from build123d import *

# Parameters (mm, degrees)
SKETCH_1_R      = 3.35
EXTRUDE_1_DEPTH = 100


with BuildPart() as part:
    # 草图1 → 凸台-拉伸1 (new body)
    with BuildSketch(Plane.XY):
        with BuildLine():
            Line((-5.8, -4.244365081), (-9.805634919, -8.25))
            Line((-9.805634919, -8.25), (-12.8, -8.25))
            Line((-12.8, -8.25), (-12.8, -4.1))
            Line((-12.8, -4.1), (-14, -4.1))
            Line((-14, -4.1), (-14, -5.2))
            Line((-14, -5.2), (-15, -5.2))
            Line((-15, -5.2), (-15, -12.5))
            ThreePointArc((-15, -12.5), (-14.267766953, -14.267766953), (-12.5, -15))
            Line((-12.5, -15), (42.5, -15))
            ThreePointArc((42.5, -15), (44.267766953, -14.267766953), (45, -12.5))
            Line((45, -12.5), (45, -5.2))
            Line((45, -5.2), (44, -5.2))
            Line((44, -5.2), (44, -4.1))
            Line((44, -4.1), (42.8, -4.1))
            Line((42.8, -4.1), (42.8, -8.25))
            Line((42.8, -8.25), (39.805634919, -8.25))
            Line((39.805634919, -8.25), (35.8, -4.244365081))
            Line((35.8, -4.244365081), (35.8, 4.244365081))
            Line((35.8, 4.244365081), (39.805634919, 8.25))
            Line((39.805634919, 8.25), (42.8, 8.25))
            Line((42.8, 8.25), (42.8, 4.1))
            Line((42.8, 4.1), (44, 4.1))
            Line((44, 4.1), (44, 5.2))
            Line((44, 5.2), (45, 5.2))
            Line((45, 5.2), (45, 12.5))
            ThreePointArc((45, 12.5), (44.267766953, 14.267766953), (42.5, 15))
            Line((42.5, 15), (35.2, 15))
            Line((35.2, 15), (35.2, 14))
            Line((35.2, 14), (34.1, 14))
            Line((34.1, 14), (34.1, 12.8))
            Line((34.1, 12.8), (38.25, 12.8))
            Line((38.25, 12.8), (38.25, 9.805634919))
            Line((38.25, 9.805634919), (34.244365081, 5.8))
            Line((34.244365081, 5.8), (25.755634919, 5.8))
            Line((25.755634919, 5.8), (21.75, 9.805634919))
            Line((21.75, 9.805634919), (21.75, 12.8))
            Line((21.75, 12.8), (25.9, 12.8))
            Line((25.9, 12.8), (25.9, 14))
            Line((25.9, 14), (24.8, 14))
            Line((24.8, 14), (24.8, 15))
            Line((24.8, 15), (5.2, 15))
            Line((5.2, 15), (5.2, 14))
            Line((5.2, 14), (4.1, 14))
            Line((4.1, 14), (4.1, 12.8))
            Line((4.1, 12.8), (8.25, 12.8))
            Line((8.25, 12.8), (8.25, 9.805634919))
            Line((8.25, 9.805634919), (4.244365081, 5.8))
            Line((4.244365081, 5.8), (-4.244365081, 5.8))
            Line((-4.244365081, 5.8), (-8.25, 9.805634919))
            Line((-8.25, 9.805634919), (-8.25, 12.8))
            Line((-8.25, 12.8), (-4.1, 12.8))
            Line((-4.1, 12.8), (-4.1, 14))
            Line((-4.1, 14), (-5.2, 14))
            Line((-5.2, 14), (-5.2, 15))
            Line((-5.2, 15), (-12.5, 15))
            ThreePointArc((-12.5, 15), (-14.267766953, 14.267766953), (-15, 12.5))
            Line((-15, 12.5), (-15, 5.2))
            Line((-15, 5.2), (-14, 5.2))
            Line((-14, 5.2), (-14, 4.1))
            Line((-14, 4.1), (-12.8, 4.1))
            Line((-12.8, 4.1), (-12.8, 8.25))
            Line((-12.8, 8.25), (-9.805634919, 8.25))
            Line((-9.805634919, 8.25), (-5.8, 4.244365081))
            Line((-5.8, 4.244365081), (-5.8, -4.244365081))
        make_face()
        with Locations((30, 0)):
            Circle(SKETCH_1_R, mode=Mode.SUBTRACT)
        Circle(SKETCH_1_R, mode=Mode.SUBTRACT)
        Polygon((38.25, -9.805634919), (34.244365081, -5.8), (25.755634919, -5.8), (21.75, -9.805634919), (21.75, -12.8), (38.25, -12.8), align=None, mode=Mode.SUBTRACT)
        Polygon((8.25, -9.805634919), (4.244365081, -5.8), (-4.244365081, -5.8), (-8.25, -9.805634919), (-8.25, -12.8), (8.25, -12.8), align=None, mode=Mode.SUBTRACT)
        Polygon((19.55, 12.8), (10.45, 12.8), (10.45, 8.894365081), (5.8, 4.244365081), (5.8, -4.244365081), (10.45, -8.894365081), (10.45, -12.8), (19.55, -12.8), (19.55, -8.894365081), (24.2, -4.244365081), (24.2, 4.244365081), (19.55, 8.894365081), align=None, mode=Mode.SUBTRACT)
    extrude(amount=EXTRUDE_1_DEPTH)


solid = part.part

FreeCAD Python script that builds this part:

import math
import FreeCAD as App
import Part
import Sketcher

V = App.Vector


def add_polygon(sketch, points):
    """Adds a closed chain of lines whose ends are joined by coincident constraints."""
    first, n = sketch.GeometryCount, len(points)
    for a, b in zip(points, points[1:] + points[:1]):
        sketch.addGeometry(Part.LineSegment(App.Vector(*a, 0), App.Vector(*b, 0)), False)
    for i in range(n):
        sketch.addConstraint(Sketcher.Constraint("Coincident", first + i, 2, first + (i + 1) % n, 1))

doc = App.newDocument("Part")
body = doc.addObject("PartDesign::Body", "Body")

# Sketch on XY plane
sketch1 = body.newObject("Sketcher::SketchObject", "Sketch")
sketch1.AttachmentSupport = (doc.getObject("XY_Plane"), [""])
sketch1.MapMode = "FlatFace"
sketch1.addGeometry(Part.LineSegment(V(-5.8, -4.244365, 0), V(-9.805635, -8.25, 0)), False)  # 0
sketch1.addGeometry(Part.LineSegment(V(-9.805635, -8.25, 0), V(-12.8, -8.25, 0)), False)  # 1
sketch1.addGeometry(Part.LineSegment(V(-12.8, -8.25, 0), V(-12.8, -4.1, 0)), False)  # 2
sketch1.addGeometry(Part.LineSegment(V(-12.8, -4.1, 0), V(-14, -4.1, 0)), False)  # 3
sketch1.addGeometry(Part.LineSegment(V(-14, -4.1, 0), V(-14, -5.2, 0)), False)  # 4
sketch1.addGeometry(Part.LineSegment(V(-14, -5.2, 0), V(-15, -5.2, 0)), False)  # 5
sketch1.addGeometry(Part.LineSegment(V(-15, -5.2, 0), V(-15, -12.5, 0)), False)  # 6
sketch1.addGeometry(Part.ArcOfCircle(Part.Circle(V(-12.5, -12.5, 0), V(0, 0, 1), 2.5), math.radians(180), math.radians(270)), False)  # 7
sketch1.addGeometry(Part.LineSegment(V(-12.5, -15, 0), V(42.5, -15, 0)), False)  # 8
sketch1.addGeometry(Part.ArcOfCircle(Part.Circle(V(42.5, -12.5, 0), V(0, 0, 1), 2.5), math.radians(-90), math.radians(0)), False)  # 9
sketch1.addGeometry(Part.LineSegment(V(45, -12.5, 0), V(45, -5.2, 0)), False)  # 10
sketch1.addGeometry(Part.LineSegment(V(45, -5.2, 0), V(44, -5.2, 0)), False)  # 11
sketch1.addGeometry(Part.LineSegment(V(44, -5.2, 0), V(44, -4.1, 0)), False)  # 12
sketch1.addGeometry(Part.LineSegment(V(44, -4.1, 0), V(42.8, -4.1, 0)), False)  # 13
sketch1.addGeometry(Part.LineSegment(V(42.8, -4.1, 0), V(42.8, -8.25, 0)), False)  # 14
sketch1.addGeometry(Part.LineSegment(V(42.8, -8.25, 0), V(39.805635, -8.25, 0)), False)  # 15
sketch1.addGeometry(Part.LineSegment(V(39.805635, -8.25, 0), V(35.8, -4.244365, 0)), False)  # 16
sketch1.addGeometry(Part.LineSegment(V(35.8, -4.244365, 0), V(35.8, 4.244365, 0)), False)  # 17
sketch1.addGeometry(Part.LineSegment(V(35.8, 4.244365, 0), V(39.805635, 8.25, 0)), False)  # 18
sketch1.addGeometry(Part.LineSegment(V(39.805635, 8.25, 0), V(42.8, 8.25, 0)), False)  # 19
sketch1.addGeometry(Part.LineSegment(V(42.8, 8.25, 0), V(42.8, 4.1, 0)), False)  # 20
sketch1.addGeometry(Part.LineSegment(V(42.8, 4.1, 0), V(44, 4.1, 0)), False)  # 21
sketch1.addGeometry(Part.LineSegment(V(44, 4.1, 0), V(44, 5.2, 0)), False)  # 22
sketch1.addGeometry(Part.LineSegment(V(44, 5.2, 0), V(45, 5.2, 0)), False)  # 23
sketch1.addGeometry(Part.LineSegment(V(45, 5.2, 0), V(45, 12.5, 0)), False)  # 24
sketch1.addGeometry(Part.ArcOfCircle(Part.Circle(V(42.5, 12.5, 0), V(0, 0, 1), 2.5), math.radians(0), math.radians(90)), False)  # 25
sketch1.addGeometry(Part.LineSegment(V(42.5, 15, 0), V(35.2, 15, 0)), False)  # 26
sketch1.addGeometry(Part.LineSegment(V(35.2, 15, 0), V(35.2, 14, 0)), False)  # 27
sketch1.addGeometry(Part.LineSegment(V(35.2, 14, 0), V(34.1, 14, 0)), False)  # 28
sketch1.addGeometry(Part.LineSegment(V(34.1, 14, 0), V(34.1, 12.8, 0)), False)  # 29
sketch1.addGeometry(Part.LineSegment(V(34.1, 12.8, 0), V(38.25, 12.8, 0)), False)  # 30
sketch1.addGeometry(Part.LineSegment(V(38.25, 12.8, 0), V(38.25, 9.805635, 0)), False)  # 31
sketch1.addGeometry(Part.LineSegment(V(38.25, 9.805635, 0), V(34.244365, 5.8, 0)), False)  # 32
sketch1.addGeometry(Part.LineSegment(V(34.244365, 5.8, 0), V(25.755635, 5.8, 0)), False)  # 33
sketch1.addGeometry(Part.LineSegment(V(25.755635, 5.8, 0), V(21.75, 9.805635, 0)), False)  # 34
sketch1.addGeometry(Part.LineSegment(V(21.75, 9.805635, 0), V(21.75, 12.8, 0)), False)  # 35
sketch1.addGeometry(Part.LineSegment(V(21.75, 12.8, 0), V(25.9, 12.8, 0)), False)  # 36
sketch1.addGeometry(Part.LineSegment(V(25.9, 12.8, 0), V(25.9, 14, 0)), False)  # 37
sketch1.addGeometry(Part.LineSegment(V(25.9, 14, 0), V(24.8, 14, 0)), False)  # 38
sketch1.addGeometry(Part.LineSegment(V(24.8, 14, 0), V(24.8, 15, 0)), False)  # 39
sketch1.addGeometry(Part.LineSegment(V(24.8, 15, 0), V(5.2, 15, 0)), False)  # 40
sketch1.addGeometry(Part.LineSegment(V(5.2, 15, 0), V(5.2, 14, 0)), False)  # 41
sketch1.addGeometry(Part.LineSegment(V(5.2, 14, 0), V(4.1, 14, 0)), False)  # 42
sketch1.addGeometry(Part.LineSegment(V(4.1, 14, 0), V(4.1, 12.8, 0)), False)  # 43
sketch1.addGeometry(Part.LineSegment(V(4.1, 12.8, 0), V(8.25, 12.8, 0)), False)  # 44
sketch1.addGeometry(Part.LineSegment(V(8.25, 12.8, 0), V(8.25, 9.805635, 0)), False)  # 45
sketch1.addGeometry(Part.LineSegment(V(8.25, 9.805635, 0), V(4.244365, 5.8, 0)), False)  # 46
sketch1.addGeometry(Part.LineSegment(V(4.244365, 5.8, 0), V(-4.244365, 5.8, 0)), False)  # 47
sketch1.addGeometry(Part.LineSegment(V(-4.244365, 5.8, 0), V(-8.25, 9.805635, 0)), False)  # 48
sketch1.addGeometry(Part.LineSegment(V(-8.25, 9.805635, 0), V(-8.25, 12.8, 0)), False)  # 49
sketch1.addGeometry(Part.LineSegment(V(-8.25, 12.8, 0), V(-4.1, 12.8, 0)), False)  # 50
sketch1.addGeometry(Part.LineSegment(V(-4.1, 12.8, 0), V(-4.1, 14, 0)), False)  # 51
sketch1.addGeometry(Part.LineSegment(V(-4.1, 14, 0), V(-5.2, 14, 0)), False)  # 52
sketch1.addGeometry(Part.LineSegment(V(-5.2, 14, 0), V(-5.2, 15, 0)), False)  # 53
sketch1.addGeometry(Part.LineSegment(V(-5.2, 15, 0), V(-12.5, 15, 0)), False)  # 54
sketch1.addGeometry(Part.ArcOfCircle(Part.Circle(V(-12.5, 12.5, 0), V(0, 0, 1), 2.5), math.radians(90), math.radians(180)), False)  # 55
sketch1.addGeometry(Part.LineSegment(V(-15, 12.5, 0), V(-15, 5.2, 0)), False)  # 56
sketch1.addGeometry(Part.LineSegment(V(-15, 5.2, 0), V(-14, 5.2, 0)), False)  # 57
sketch1.addGeometry(Part.LineSegment(V(-14, 5.2, 0), V(-14, 4.1, 0)), False)  # 58
sketch1.addGeometry(Part.LineSegment(V(-14, 4.1, 0), V(-12.8, 4.1, 0)), False)  # 59
sketch1.addGeometry(Part.LineSegment(V(-12.8, 4.1, 0), V(-12.8, 8.25, 0)), False)  # 60
sketch1.addGeometry(Part.LineSegment(V(-12.8, 8.25, 0), V(-9.805635, 8.25, 0)), False)  # 61
sketch1.addGeometry(Part.LineSegment(V(-9.805635, 8.25, 0), V(-5.8, 4.244365, 0)), False)  # 62
sketch1.addGeometry(Part.LineSegment(V(-5.8, 4.244365, 0), V(-5.8, -4.244365, 0)), False)  # 63
add_polygon(sketch1, [(4.244365, -5.8), (8.25, -9.805635), (8.25, -12.8), (-8.25, -12.8), (-8.25, -9.805635), (-4.244365, -5.8)])  # lines 64-69
add_polygon(sketch1, [(34.244365, -5.8), (38.25, -9.805635), (38.25, -12.8), (21.75, -12.8), (21.75, -9.805635), (25.755635, -5.8)])  # lines 70-75
sketch1.addGeometry(Part.Circle(V(0, 0, 0), V(0, 0, 1), 3.35), False)  # 76
add_polygon(sketch1, [(10.45, 12.8), (19.55, 12.8), (19.55, 8.894365), (24.2, 4.244365), (24.2, -4.244365), (19.55, -8.894365), (19.55, -12.8), (10.45, -12.8), (10.45, -8.894365), (5.8, -4.244365), (5.8, 4.244365), (10.45, 8.894365)])  # lines 77-88
sketch1.addGeometry(Part.Circle(V(30, 0, 0), V(0, 0, 1), 3.35), False)  # 89
sketch1.addConstraint([
    Sketcher.Constraint("Coincident", 0, 2, 1, 1),
    Sketcher.Constraint("Coincident", 1, 2, 2, 1),
    Sketcher.Constraint("Coincident", 2, 2, 3, 1),
    Sketcher.Constraint("Coincident", 3, 2, 4, 1),
    Sketcher.Constraint("Coincident", 4, 2, 5, 1),
    Sketcher.Constraint("Coincident", 5, 2, 6, 1),
    Sketcher.Constraint("Tangent", 6, 2, 7, 1),
    Sketcher.Constraint("Tangent", 7, 2, 8, 1),
    Sketcher.Constraint("Tangent", 8, 2, 9, 1),
    Sketcher.Constraint("Tangent", 9, 2, 10, 1),
    Sketcher.Constraint("Coincident", 10, 2, 11, 1),
    Sketcher.Constraint("Coincident", 11, 2, 12, 1),
    Sketcher.Constraint("Coincident", 12, 2, 13, 1),
    Sketcher.Constraint("Coincident", 13, 2, 14, 1),
    Sketcher.Constraint("Coincident", 14, 2, 15, 1),
    Sketcher.Constraint("Coincident", 15, 2, 16, 1),
    Sketcher.Constraint("Coincident", 16, 2, 17, 1),
    Sketcher.Constraint("Coincident", 17, 2, 18, 1),
    Sketcher.Constraint("Coincident", 18, 2, 19, 1),
    Sketcher.Constraint("Coincident", 19, 2, 20, 1),
    Sketcher.Constraint("Coincident", 20, 2, 21, 1),
    Sketcher.Constraint("Coincident", 21, 2, 22, 1),
    Sketcher.Constraint("Coincident", 22, 2, 23, 1),
    Sketcher.Constraint("Coincident", 23, 2, 24, 1),
    Sketcher.Constraint("Tangent", 24, 2, 25, 1),
    Sketcher.Constraint("Tangent", 25, 2, 26, 1),
    Sketcher.Constraint("Coincident", 26, 2, 27, 1),
    Sketcher.Constraint("Coincident", 27, 2, 28, 1),
    Sketcher.Constraint("Coincident", 28, 2, 29, 1),
    Sketcher.Constraint("Coincident", 29, 2, 30, 1),
    Sketcher.Constraint("Coincident", 30, 2, 31, 1),
    Sketcher.Constraint("Coincident", 31, 2, 32, 1),
    Sketcher.Constraint("Coincident", 32, 2, 33, 1),
    Sketcher.Constraint("Coincident", 33, 2, 34, 1),
    Sketcher.Constraint("Coincident", 34, 2, 35, 1),
    Sketcher.Constraint("Coincident", 35, 2, 36, 1),
    Sketcher.Constraint("Coincident", 36, 2, 37, 1),
    Sketcher.Constraint("Coincident", 37, 2, 38, 1),
    Sketcher.Constraint("Coincident", 38, 2, 39, 1),
    Sketcher.Constraint("Coincident", 39, 2, 40, 1),
    Sketcher.Constraint("Coincident", 40, 2, 41, 1),
    Sketcher.Constraint("Coincident", 41, 2, 42, 1),
    Sketcher.Constraint("Coincident", 42, 2, 43, 1),
    Sketcher.Constraint("Coincident", 43, 2, 44, 1),
    Sketcher.Constraint("Coincident", 44, 2, 45, 1),
    Sketcher.Constraint("Coincident", 45, 2, 46, 1),
    Sketcher.Constraint("Coincident", 46, 2, 47, 1),
    Sketcher.Constraint("Coincident", 47, 2, 48, 1),
    Sketcher.Constraint("Coincident", 48, 2, 49, 1),
    Sketcher.Constraint("Coincident", 49, 2, 50, 1),
    Sketcher.Constraint("Coincident", 50, 2, 51, 1),
    Sketcher.Constraint("Coincident", 51, 2, 52, 1),
    Sketcher.Constraint("Coincident", 52, 2, 53, 1),
    Sketcher.Constraint("Coincident", 53, 2, 54, 1),
    Sketcher.Constraint("Tangent", 54, 2, 55, 1),
    Sketcher.Constraint("Tangent", 55, 2, 56, 1),
    Sketcher.Constraint("Coincident", 56, 2, 57, 1),
    Sketcher.Constraint("Coincident", 57, 2, 58, 1),
    Sketcher.Constraint("Coincident", 58, 2, 59, 1),
    Sketcher.Constraint("Coincident", 59, 2, 60, 1),
    Sketcher.Constraint("Coincident", 60, 2, 61, 1),
    Sketcher.Constraint("Coincident", 61, 2, 62, 1),
    Sketcher.Constraint("Coincident", 62, 2, 63, 1),
    Sketcher.Constraint("Coincident", 63, 2, 0, 1),
    Sketcher.Constraint("Horizontal", 1),
    Sketcher.Constraint("Vertical", 2),
    Sketcher.Constraint("Horizontal", 3),
    Sketcher.Constraint("Vertical", 4),
    Sketcher.Constraint("Horizontal", 5),
    Sketcher.Constraint("Vertical", 6),
    Sketcher.Constraint("Horizontal", 8),
    Sketcher.Constraint("Vertical", 10),
    Sketcher.Constraint("Horizontal", 11),
    Sketcher.Constraint("Vertical", 12),
    Sketcher.Constraint("Horizontal", 13),
    Sketcher.Constraint("Vertical", 14),
    Sketcher.Constraint("Horizontal", 15),
    Sketcher.Constraint("Vertical", 17),
    Sketcher.Constraint("Horizontal", 19),
    Sketcher.Constraint("Vertical", 20),
    Sketcher.Constraint("Horizontal", 21),
    Sketcher.Constraint("Vertical", 22),
    Sketcher.Constraint("Horizontal", 23),
    Sketcher.Constraint("Vertical", 24),
    Sketcher.Constraint("Horizontal", 26),
    Sketcher.Constraint("Vertical", 27),
    Sketcher.Constraint("Horizontal", 28),
    Sketcher.Constraint("Vertical", 29),
    Sketcher.Constraint("Horizontal", 30),
    Sketcher.Constraint("Vertical", 31),
    Sketcher.Constraint("Horizontal", 33),
    Sketcher.Constraint("Vertical", 35),
    Sketcher.Constraint("Horizontal", 36),
    Sketcher.Constraint("Vertical", 37),
    Sketcher.Constraint("Horizontal", 38),
    Sketcher.Constraint("Vertical", 39),
    Sketcher.Constraint("Horizontal", 40),
    Sketcher.Constraint("Vertical", 41),
    Sketcher.Constraint("Horizontal", 42),
    Sketcher.Constraint("Vertical", 43),
    Sketcher.Constraint("Horizontal", 44),
    Sketcher.Constraint("Vertical", 45),
    Sketcher.Constraint("Horizontal", 47),
    Sketcher.Constraint("Vertical", 49),
    Sketcher.Constraint("Horizontal", 50),
    Sketcher.Constraint("Vertical", 51),
    Sketcher.Constraint("Horizontal", 52),
    Sketcher.Constraint("Vertical", 53),
    Sketcher.Constraint("Horizontal", 54),
    Sketcher.Constraint("Vertical", 56),
    Sketcher.Constraint("Horizontal", 57),
    Sketcher.Constraint("Vertical", 58),
    Sketcher.Constraint("Horizontal", 59),
    Sketcher.Constraint("Vertical", 60),
    Sketcher.Constraint("Horizontal", 61),
    Sketcher.Constraint("Vertical", 63),
    Sketcher.Constraint("Vertical", 65),
    Sketcher.Constraint("Horizontal", 66),
    Sketcher.Constraint("Vertical", 67),
    Sketcher.Constraint("Horizontal", 69),
    Sketcher.Constraint("Vertical", 71),
    Sketcher.Constraint("Horizontal", 72),
    Sketcher.Constraint("Vertical", 73),
    Sketcher.Constraint("Horizontal", 75),
    Sketcher.Constraint("Horizontal", 77),
    Sketcher.Constraint("Vertical", 78),
    Sketcher.Constraint("Vertical", 80),
    Sketcher.Constraint("Vertical", 82),
    Sketcher.Constraint("Horizontal", 83),
    Sketcher.Constraint("Vertical", 84),
    Sketcher.Constraint("Vertical", 86),
    Sketcher.Constraint("Vertical", 88),
    Sketcher.Constraint("Coincident", 76, 3, -1, 1),
    Sketcher.Constraint("Equal", 7, 9),
    Sketcher.Constraint("Equal", 9, 25),
    Sketcher.Constraint("Equal", 25, 55),
    Sketcher.Constraint("Equal", 76, 89),
    Sketcher.Constraint("Symmetric", 48, 2, 64, 2, -1, 1),
    Sketcher.Constraint("Symmetric", 44, 2, 66, 2, -1, 1),
    Sketcher.Constraint("Symmetric", 46, 2, 68, 2, -1, 1),
    Sketcher.Constraint("Symmetric", 62, 2, 85, 2, -1, 1),
    Sketcher.Constraint("Symmetric", 45, 2, 48, 2, -2),
    Sketcher.Constraint("Symmetric", 43, 2, 50, 2, -2),
    Sketcher.Constraint("Symmetric", 41, 2, 52, 2, -2),
    Sketcher.Constraint("Symmetric", 9, 3, 25, 3, -1),
    Sketcher.Constraint("Symmetric", 7, 3, 55, 3, -1),
    Sketcher.Constraint("Symmetric", 15, 2, 18, 2, -1),
    Sketcher.Constraint("Symmetric", 13, 2, 20, 2, -1),
    Sketcher.Constraint("Symmetric", 11, 2, 22, 2, -1),
    Sketcher.Constraint("Symmetric", 4, 2, 57, 2, -1),
    Sketcher.Constraint("Symmetric", 2, 2, 59, 2, -1),
    Sketcher.Constraint("Symmetric", 0, 2, 61, 2, -1),
    Sketcher.Constraint("Symmetric", 31, 2, 70, 2, -1),
    Sketcher.Constraint("Symmetric", 35, 2, 72, 2, -1),
    Sketcher.Constraint("Symmetric", 33, 2, 74, 2, -1),
    Sketcher.Constraint("Symmetric", 78, 2, 81, 2, -1),
    Sketcher.Constraint("Symmetric", 84, 2, 87, 2, -1),
    Sketcher.Constraint("PointOnObject", 89, 3, -1),
    Sketcher.Constraint("Perpendicular", 0, 16),
    Sketcher.Constraint("Perpendicular", 16, 18),
    Sketcher.Constraint("Parallel", 18, 32),
    Sketcher.Constraint("Perpendicular", 32, 34),
    Sketcher.Constraint("Perpendicular", 34, 46),
    Sketcher.Constraint("Perpendicular", 46, 48),
    Sketcher.Constraint("Parallel", 48, 62),
    Sketcher.Constraint("Parallel", 62, 64),
    Sketcher.Constraint("Perpendicular", 64, 68),
    Sketcher.Constraint("Perpendicular", 68, 70),
    Sketcher.Constraint("Perpendicular", 70, 74),
    Sketcher.Constraint("Perpendicular", 74, 79),
    Sketcher.Constraint("Perpendicular", 79, 81),
    Sketcher.Constraint("Perpendicular", 81, 85),
    Sketcher.Constraint("Perpendicular", 85, 87),
    Sketcher.Constraint("Horizontal", 5, 2, 10, 2),
    Sketcher.Constraint("Horizontal", 3, 2, 12, 2),
    Sketcher.Constraint("Horizontal", 1, 2, 14, 2),
    Sketcher.Constraint("Horizontal", 31, 2, 34, 2),
    Sketcher.Constraint("Horizontal", 30, 2, 35, 2),
    Sketcher.Constraint("Horizontal", 28, 2, 37, 2),
    Sketcher.Constraint("Horizontal", 26, 2, 39, 2),
    Sketcher.Constraint("Horizontal", 38, 2, 41, 2),
    Sketcher.Constraint("Horizontal", 36, 2, 43, 2),
    Sketcher.Constraint("Horizontal", 34, 2, 45, 2),
    Sketcher.Constraint("Horizontal", 33, 2, 46, 2),
    Sketcher.Constraint("Horizontal", 17, 2, 62, 2),
    Sketcher.Constraint("Horizontal", 16, 2, 63, 2),
    Sketcher.Constraint("Horizontal", 50, 2, 77, 2),
    Sketcher.Constraint("Horizontal", 62, 2, 79, 2),
    Sketcher.Constraint("Horizontal", 72, 2, 82, 2),
    Sketcher.Constraint("Horizontal", 81, 2, 84, 2),
    Sketcher.Constraint("Equal", 5, 11),
    Sketcher.Constraint("Equal", 3, 13),
    Sketcher.Constraint("Equal", 1, 15),
    Sketcher.Constraint("Equal", 30, 36),
    Sketcher.Constraint("Equal", 28, 38),
    Sketcher.Constraint("Equal", 38, 42),
    Sketcher.Constraint("Equal", 36, 44),
    Sketcher.Constraint("Equal", 33, 47),
    Sketcher.Constraint("Equal", 26, 54),
    Sketcher.Constraint("Equal", 50, 2),
    Sketcher.Constraint("Equal", 52, 4),
    Sketcher.Constraint("Equal", 54, 6),
    Sketcher.Constraint("Equal", 75, 17),
    Sketcher.Constraint("Equal", 57, 27),
    Sketcher.Constraint("Equal", 59, 29),
    Sketcher.Constraint("Equal", 61, 31),
    Sketcher.Constraint("Equal", 18, 32),
    Sketcher.Constraint("Diameter", 76, 6.7),
    Sketcher.Constraint("Radius", 7, 2.5),
    Sketcher.Constraint("DistanceX", 5, 2, 5, 1, 1.0),
    Sketcher.Constraint("DistanceX", 8, 1, 8, 2, 55.0),
    Sketcher.Constraint("DistanceX", 3, 2, 3, 1, 1.2),
    Sketcher.Constraint("DistanceX", 26, 2, 26, 1, 7.3),
    Sketcher.Constraint("DistanceX", 28, 2, 28, 1, 1.1),
    Sketcher.Constraint("DistanceX", 40, 2, 40, 1, 19.6),
    Sketcher.Constraint("DistanceX", 66, 2, 66, 1, 16.5),
    Sketcher.Constraint("DistanceX", 77, 1, 77, 2, 9.1),
    Sketcher.Constraint("DistanceX", -1, 1, 89, 3, 30.0),
    Sketcher.Constraint("DistanceX", -1, 1, 16, 2, 35.8),
    Sketcher.Constraint("DistanceX", -1, 1, 79, 2, 24.2),
    Sketcher.Constraint("DistanceX", 33, 2, 33, 1, 8.48873),
])
pad1 = body.newObject("PartDesign::Pad", "Pad")
pad1.Profile = sketch1
pad1.Length = 100

doc.recompute()
